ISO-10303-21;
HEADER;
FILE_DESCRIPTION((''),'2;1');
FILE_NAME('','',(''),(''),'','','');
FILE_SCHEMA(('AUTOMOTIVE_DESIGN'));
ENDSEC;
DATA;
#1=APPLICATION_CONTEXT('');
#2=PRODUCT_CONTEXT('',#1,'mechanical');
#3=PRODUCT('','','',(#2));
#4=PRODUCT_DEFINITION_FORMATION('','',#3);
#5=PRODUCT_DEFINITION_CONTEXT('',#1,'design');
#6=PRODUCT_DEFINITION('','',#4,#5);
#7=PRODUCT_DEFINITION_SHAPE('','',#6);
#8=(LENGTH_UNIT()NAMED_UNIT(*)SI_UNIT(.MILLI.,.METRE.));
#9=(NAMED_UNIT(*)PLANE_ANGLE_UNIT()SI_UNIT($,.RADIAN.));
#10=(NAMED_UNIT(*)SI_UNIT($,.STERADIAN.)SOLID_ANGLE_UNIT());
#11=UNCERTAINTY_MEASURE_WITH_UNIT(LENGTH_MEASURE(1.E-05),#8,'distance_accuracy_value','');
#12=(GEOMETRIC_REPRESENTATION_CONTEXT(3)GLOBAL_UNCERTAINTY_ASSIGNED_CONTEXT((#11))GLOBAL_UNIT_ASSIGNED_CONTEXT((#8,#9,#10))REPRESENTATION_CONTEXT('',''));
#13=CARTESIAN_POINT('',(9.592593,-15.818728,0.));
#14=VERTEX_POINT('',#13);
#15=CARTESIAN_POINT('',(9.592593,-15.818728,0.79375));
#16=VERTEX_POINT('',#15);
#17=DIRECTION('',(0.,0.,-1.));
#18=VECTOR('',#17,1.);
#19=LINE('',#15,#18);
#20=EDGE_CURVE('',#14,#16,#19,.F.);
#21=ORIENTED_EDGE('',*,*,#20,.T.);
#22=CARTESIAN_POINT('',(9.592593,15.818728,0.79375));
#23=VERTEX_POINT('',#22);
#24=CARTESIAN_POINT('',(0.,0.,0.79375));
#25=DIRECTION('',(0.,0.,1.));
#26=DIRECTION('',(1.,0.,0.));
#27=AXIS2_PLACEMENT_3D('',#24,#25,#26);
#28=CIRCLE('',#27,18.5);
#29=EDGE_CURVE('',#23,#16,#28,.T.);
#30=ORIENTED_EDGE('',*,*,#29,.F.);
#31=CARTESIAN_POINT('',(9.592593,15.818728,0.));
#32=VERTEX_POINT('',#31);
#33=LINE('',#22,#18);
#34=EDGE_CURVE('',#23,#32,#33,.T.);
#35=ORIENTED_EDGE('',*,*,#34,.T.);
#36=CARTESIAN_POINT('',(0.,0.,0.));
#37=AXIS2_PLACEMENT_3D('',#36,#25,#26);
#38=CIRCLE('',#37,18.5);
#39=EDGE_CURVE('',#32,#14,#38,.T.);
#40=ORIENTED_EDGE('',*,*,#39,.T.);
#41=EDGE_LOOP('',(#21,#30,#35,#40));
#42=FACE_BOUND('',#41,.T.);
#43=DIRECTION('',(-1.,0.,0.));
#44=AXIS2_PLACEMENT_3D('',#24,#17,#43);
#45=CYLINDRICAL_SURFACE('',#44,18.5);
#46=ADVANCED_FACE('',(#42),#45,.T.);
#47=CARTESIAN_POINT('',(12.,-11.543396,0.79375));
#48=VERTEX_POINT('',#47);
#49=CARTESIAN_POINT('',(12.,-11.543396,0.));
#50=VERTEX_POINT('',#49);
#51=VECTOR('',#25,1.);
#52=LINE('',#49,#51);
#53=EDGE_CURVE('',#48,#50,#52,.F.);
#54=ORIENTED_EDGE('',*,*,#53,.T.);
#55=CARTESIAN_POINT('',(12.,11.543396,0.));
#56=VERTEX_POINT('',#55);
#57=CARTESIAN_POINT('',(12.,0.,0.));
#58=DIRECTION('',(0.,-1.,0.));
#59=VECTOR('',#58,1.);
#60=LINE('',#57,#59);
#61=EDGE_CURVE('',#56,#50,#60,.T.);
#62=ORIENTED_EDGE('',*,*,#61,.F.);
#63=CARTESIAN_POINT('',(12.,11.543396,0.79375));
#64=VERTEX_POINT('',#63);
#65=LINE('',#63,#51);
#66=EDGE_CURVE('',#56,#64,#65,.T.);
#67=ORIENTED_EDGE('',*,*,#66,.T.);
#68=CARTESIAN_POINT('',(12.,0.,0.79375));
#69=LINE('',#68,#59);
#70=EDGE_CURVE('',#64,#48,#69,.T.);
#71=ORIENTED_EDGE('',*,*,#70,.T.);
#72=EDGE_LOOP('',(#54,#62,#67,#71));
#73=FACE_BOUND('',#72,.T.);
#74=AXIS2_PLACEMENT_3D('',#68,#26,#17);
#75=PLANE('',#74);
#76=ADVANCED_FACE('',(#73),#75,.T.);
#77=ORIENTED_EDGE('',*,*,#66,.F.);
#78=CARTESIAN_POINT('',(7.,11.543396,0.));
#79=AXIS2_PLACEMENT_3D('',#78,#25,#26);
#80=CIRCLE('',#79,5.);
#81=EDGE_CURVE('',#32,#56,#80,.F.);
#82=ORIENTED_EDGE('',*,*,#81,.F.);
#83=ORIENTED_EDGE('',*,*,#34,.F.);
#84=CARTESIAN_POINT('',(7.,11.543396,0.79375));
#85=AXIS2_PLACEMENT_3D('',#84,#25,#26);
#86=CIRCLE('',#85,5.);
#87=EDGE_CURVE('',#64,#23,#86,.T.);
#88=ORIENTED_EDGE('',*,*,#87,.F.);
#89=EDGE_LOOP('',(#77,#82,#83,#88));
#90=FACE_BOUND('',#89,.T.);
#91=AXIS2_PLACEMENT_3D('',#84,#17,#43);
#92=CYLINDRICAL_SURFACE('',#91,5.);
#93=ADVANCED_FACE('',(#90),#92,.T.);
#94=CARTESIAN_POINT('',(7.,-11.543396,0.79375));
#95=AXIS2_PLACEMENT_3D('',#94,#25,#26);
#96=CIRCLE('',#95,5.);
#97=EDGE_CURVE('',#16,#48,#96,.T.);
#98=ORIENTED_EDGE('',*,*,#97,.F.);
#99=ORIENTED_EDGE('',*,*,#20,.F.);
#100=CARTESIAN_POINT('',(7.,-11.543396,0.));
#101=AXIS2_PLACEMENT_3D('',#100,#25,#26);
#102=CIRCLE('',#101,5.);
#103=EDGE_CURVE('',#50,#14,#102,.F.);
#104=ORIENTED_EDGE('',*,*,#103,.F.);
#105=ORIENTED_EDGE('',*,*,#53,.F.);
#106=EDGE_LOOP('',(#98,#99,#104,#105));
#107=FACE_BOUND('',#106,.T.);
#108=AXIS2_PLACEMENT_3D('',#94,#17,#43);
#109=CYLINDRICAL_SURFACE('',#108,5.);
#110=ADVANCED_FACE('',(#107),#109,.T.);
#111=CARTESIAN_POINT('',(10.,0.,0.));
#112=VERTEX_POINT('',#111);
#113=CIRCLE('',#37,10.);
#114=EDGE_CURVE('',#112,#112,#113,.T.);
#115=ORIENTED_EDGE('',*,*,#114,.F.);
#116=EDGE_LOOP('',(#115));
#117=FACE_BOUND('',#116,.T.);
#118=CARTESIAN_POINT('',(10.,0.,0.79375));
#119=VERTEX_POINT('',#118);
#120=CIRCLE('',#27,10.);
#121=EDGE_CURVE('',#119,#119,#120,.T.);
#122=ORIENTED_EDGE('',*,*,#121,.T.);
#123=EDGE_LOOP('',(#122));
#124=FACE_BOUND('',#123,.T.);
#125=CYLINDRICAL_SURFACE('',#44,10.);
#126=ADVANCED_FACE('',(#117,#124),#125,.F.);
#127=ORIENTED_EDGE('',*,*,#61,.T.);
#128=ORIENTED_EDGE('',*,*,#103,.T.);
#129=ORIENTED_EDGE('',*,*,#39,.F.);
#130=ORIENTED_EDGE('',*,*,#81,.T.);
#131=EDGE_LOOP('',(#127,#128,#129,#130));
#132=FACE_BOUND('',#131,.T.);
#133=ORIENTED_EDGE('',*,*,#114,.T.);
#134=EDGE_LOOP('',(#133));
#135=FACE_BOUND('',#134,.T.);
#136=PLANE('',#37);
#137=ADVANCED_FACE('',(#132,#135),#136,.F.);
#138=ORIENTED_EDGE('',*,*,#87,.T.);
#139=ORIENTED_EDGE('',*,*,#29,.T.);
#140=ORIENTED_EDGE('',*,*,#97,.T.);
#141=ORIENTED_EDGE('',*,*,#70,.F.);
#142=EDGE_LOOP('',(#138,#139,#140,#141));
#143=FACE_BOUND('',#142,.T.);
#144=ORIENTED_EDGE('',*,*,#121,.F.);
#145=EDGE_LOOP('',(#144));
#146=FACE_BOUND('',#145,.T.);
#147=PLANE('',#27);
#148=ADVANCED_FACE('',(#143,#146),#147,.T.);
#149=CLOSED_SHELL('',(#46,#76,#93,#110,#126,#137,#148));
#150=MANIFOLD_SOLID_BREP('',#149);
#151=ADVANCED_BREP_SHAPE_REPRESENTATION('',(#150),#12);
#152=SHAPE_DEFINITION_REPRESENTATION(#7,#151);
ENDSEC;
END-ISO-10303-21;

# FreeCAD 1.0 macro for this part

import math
import FreeCAD as App
import Part
import Sketcher
from FreeCAD import Vector
Q = App.Units.Quantity


def edges_at(feature, points):
    """Names of the edges that pass closest to the given points."""
    edges = feature.Shape.Edges
    near = lambda p: min(range(len(edges)), key=lambda i: edges[i].distToShape(Part.Vertex(*p))[0])
    return sorted({f"Edge{near(p) + 1}" for p in points})

doc = App.newDocument("Part")
body = doc.addObject("PartDesign::Body", "Body")

# Sketch on XY plane
sketch1 = doc.addObject("Sketcher::SketchObject", "Sketch")
body.addObject(sketch1)
sketch1.AttachmentSupport = (doc.XY_Plane, [""])
sketch1.MapMode = "FlatFace"
sketch1.addGeometry([
    Part.ArcOfCircle(Part.Circle(Vector(0, 0, 0), Vector(0, 0, 1), 18.5), math.radians(49.560207), math.radians(310.439793)),
    Part.ArcOfCircle(Part.Circle(Vector(0, 0, 0), Vector(0, 0, 1), 18.5), math.radians(-49.560207), math.radians(49.560207)),
    Part.Circle(Vector(0, 0, 0), Vector(0, 0, 1), 10),
], False)
sketch1.addConstraint([
    Sketcher.Constraint("Tangent", 0, 1, 1, 2),
    Sketcher.Constraint("Coincident", 1, 1, 0, 2),
    Sketcher.Constraint("Coincident", 0, 3, -1, 1),
    Sketcher.Constraint("Coincident", 2, 3, -1, 1),
    Sketcher.Constraint("Vertical", 0, 1, 1, 1),
    Sketcher.Constraint("Diameter", 2, Q("20 mm")),
    Sketcher.Constraint("Radius", 0, Q("18.5 mm")),
    Sketcher.Constraint("DistanceX", -1, 1, 0, 1, Q("12 mm")),
])
pad1 = doc.addObject("PartDesign::Pad", "Pad")
body.addObject(pad1)
pad1.Profile = sketch1
pad1.Length = 0.79375

# Sketch on XY plane
sketch2 = doc.addObject("Sketcher::SketchObject", "Sketch001")
body.addObject(sketch2)
sketch2.AttachmentSupport = (doc.XY_Plane, [""])
sketch2.MapMode = "FlatFace"
sketch2.addGeometry([
    Part.LineSegment(Vector(12, 14.080128, 0), Vector(12, -14.080128, 0)),
    Part.ArcOfCircle(Part.Circle(Vector(0, 0, 0), Vector(0, 0, 1), 18.5), math.radians(-49.560207), math.radians(49.560207)),
], False)
sketch2.addConstraint([
    Sketcher.Constraint("Coincident", 0, 1, 1, 2),
    Sketcher.Constraint("Coincident", 1, 1, 0, 2),
    Sketcher.Constraint("Vertical", 0),
    Sketcher.Constraint("Coincident", 1, 3, -1, 1),
    Sketcher.Constraint("Radius", 1, Q("18.5 mm")),
    Sketcher.Constraint("DistanceX", -1, 1, 0, 1, Q("12 mm")),
])
pocket1 = doc.addObject("PartDesign::Pocket", "Pocket")
body.addObject(pocket1)
pocket1.Profile = sketch2
pocket1.Type = "ThroughAll"
pocket1.Reversed = True
doc.recompute()

fillet = doc.addObject("PartDesign::Fillet", "Fillet")
body.addObject(fillet)
fillet.Base = (pocket1, edges_at(pocket1, [(12, 14.08, 0.397), (12, -14.08, 0.397)]))
fillet.Radius = 5

doc.recompute()
